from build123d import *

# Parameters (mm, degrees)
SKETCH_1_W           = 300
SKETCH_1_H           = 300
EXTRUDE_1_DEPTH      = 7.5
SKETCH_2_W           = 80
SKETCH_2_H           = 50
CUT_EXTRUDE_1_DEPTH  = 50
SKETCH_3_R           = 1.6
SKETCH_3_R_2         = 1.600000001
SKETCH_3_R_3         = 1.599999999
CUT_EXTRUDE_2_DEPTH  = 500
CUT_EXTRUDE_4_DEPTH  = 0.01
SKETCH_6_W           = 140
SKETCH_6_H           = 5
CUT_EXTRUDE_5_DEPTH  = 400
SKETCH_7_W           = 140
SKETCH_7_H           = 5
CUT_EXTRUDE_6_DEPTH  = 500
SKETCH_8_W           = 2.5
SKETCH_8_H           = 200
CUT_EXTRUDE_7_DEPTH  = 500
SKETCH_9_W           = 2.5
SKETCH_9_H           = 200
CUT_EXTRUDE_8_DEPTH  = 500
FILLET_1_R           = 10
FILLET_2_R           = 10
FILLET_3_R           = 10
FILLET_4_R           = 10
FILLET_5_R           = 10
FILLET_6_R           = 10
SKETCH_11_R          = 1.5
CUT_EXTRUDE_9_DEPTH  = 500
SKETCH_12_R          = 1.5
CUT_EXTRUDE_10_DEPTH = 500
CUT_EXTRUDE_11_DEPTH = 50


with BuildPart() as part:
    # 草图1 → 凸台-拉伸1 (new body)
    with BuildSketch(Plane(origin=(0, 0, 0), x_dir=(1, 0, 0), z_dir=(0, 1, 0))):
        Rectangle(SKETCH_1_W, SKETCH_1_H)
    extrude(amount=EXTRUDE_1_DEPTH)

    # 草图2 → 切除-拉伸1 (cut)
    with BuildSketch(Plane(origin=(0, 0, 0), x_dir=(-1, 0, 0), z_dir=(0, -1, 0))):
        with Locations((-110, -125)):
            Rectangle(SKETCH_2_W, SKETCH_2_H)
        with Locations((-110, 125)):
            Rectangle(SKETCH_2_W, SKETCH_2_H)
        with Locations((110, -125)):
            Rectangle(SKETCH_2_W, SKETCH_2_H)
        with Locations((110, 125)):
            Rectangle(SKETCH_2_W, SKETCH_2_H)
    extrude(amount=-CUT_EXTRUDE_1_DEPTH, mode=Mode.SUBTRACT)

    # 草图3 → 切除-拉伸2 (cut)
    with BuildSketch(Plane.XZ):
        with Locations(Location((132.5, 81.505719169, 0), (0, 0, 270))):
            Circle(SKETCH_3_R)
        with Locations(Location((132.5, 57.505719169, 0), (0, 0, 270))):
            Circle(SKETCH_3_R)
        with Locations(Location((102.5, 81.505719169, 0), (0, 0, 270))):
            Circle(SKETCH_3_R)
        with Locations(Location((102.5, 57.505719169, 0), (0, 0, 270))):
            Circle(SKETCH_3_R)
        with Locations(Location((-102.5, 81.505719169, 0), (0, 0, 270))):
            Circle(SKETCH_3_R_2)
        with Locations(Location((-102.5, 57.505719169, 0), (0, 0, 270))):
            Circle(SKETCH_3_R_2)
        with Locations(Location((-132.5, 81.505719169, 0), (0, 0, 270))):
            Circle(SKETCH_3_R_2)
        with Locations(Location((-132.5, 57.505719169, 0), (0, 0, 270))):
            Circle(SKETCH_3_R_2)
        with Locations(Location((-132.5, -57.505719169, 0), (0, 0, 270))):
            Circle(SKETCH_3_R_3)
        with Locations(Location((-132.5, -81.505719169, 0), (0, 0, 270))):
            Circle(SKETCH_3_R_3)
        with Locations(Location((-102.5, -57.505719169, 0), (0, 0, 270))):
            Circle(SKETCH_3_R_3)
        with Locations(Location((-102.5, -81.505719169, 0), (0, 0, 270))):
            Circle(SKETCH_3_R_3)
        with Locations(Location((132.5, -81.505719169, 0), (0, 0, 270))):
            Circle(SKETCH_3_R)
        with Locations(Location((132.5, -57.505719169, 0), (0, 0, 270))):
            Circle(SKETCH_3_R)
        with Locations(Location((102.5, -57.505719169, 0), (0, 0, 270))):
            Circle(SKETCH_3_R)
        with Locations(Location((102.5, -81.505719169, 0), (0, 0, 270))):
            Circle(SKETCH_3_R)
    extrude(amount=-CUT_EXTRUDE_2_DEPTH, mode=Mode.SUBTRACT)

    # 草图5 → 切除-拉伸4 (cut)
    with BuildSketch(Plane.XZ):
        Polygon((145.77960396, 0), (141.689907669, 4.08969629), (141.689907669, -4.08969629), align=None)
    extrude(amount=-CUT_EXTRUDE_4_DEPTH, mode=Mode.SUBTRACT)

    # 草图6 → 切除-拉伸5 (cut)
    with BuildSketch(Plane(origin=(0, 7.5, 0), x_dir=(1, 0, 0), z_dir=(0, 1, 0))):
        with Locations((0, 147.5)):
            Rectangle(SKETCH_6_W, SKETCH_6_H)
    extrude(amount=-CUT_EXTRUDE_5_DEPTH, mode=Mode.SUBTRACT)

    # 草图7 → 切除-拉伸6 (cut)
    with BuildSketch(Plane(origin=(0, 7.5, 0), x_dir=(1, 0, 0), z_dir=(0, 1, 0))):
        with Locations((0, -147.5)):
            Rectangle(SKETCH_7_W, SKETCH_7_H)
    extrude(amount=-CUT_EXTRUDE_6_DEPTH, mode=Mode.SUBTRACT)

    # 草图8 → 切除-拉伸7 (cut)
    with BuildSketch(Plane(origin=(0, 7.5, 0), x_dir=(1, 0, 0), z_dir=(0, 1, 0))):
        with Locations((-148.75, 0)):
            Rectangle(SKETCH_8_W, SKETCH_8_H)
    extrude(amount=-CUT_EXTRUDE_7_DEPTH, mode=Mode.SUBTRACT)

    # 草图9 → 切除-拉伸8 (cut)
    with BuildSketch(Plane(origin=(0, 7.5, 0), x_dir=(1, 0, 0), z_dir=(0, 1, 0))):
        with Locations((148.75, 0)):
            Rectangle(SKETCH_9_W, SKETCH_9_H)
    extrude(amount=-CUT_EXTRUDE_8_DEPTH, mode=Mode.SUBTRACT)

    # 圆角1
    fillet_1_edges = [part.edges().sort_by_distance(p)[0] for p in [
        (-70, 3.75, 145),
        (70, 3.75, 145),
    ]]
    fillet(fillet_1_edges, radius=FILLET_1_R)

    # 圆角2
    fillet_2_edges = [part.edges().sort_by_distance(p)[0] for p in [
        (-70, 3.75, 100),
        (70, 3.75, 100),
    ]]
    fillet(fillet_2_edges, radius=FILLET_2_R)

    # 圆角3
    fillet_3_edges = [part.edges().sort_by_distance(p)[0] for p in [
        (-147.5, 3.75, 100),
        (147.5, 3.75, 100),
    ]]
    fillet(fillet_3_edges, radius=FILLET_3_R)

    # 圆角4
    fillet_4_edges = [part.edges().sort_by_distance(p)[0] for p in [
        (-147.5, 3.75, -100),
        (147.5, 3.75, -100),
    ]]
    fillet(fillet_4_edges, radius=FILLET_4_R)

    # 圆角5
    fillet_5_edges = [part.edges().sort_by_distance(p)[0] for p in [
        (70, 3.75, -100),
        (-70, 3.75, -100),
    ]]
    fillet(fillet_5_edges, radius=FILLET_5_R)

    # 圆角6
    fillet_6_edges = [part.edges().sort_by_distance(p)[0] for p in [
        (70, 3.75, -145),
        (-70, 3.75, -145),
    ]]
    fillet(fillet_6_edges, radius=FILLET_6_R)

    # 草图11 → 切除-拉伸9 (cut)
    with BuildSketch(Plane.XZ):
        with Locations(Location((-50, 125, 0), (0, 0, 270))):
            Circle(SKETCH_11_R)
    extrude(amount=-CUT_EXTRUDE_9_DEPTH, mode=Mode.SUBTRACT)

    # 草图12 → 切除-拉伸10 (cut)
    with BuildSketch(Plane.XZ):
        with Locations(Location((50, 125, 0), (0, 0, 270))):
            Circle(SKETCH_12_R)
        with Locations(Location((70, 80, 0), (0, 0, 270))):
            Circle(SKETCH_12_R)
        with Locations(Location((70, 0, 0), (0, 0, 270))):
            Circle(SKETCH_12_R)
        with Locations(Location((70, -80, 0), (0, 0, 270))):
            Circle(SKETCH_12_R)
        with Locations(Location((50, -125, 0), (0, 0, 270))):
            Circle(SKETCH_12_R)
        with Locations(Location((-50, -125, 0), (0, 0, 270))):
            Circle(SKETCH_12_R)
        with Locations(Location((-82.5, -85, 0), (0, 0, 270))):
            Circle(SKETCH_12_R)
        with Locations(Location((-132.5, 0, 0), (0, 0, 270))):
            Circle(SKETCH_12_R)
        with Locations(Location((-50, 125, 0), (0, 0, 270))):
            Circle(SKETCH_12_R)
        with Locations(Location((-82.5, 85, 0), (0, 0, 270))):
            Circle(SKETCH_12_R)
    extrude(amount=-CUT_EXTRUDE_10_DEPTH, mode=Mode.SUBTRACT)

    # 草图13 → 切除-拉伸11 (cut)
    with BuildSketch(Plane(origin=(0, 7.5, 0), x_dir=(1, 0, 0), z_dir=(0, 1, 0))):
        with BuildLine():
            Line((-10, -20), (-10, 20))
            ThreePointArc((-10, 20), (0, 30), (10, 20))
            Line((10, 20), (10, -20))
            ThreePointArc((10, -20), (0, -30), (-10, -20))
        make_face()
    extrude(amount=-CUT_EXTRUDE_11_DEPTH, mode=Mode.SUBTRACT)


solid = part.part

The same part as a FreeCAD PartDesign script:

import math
import FreeCAD as App
import Part
import Sketcher
Q = App.Units.Quantity


def edges_at(feature, points):
    """Names of the edges that pass closest to the given points."""
    edges = feature.Shape.Edges
    near = lambda p: min(range(len(edges)), key=lambda i: edges[i].distToShape(Part.Vertex(*p))[0])
    return sorted({f"Edge{near(p) + 1}" for p in points})

doc = App.newDocument("Part")
body = doc.addObject("PartDesign::Body", "Body")

sketch1 = body.newObject("Sketcher::SketchObject", "Sketch")
sketch1.AttachmentSupport = (doc.getObject("XZ_Plane"), [""])
sketch1.MapMode = "FlatFace"
sketch1.addGeometry([
    Part.LineSegment(App.Vector(-150, -150, 0), App.Vector(-150, 150, 0)),
    Part.LineSegment(App.Vector(-150, 150, 0), App.Vector(150, 150, 0)),
    Part.LineSegment(App.Vector(150, 150, 0), App.Vector(150, -150, 0)),
    Part.LineSegment(App.Vector(150, -150, 0), App.Vector(-150, -150, 0)),
], False)
sketch1.addConstraint([
    Sketcher.Constraint("Coincident", 0, 2, 1, 1),
    Sketcher.Constraint("Coincident", 1, 2, 2, 1),
    Sketcher.Constraint("Coincident", 2, 2, 3, 1),
    Sketcher.Constraint("Coincident", 3, 2, 0, 1),
    Sketcher.Constraint("Vertical", 0),
    Sketcher.Constraint("Horizontal", 1),
    Sketcher.Constraint("Vertical", 2),
    Sketcher.Constraint("Horizontal", 3),
    Sketcher.Constraint("Symmetric", 0, 2, 2, 2, -1, 1),
    Sketcher.Constraint("Equal", 3, 0),
    Sketcher.Constraint("DistanceX", 1, 1, 1, 2, Q("300 mm")),
])
pad1 = body.newObject("PartDesign::Pad", "Pad")
pad1.Profile = sketch1
pad1.Length = 7.5
pad1.Reversed = True

sketch2 = body.newObject("Sketcher::SketchObject", "Sketch001")
sketch2.AttachmentSupport = (doc.getObject("XZ_Plane"), [""])
sketch2.MapMode = "FlatFace"
sketch2.addGeometry([
    Part.LineSegment(App.Vector(150, 100, 0), App.Vector(150, 150, 0)),
    Part.LineSegment(App.Vector(150, 150, 0), App.Vector(70, 150, 0)),
    Part.LineSegment(App.Vector(70, 150, 0), App.Vector(70, 100, 0)),
    Part.LineSegment(App.Vector(70, 100, 0), App.Vector(150, 100, 0)),
    Part.LineSegment(App.Vector(150, -150, 0), App.Vector(150, -100, 0)),
    Part.LineSegment(App.Vector(150, -100, 0), App.Vector(70, -100, 0)),
    Part.LineSegment(App.Vector(70, -100, 0), App.Vector(70, -150, 0)),
    Part.LineSegment(App.Vector(70, -150, 0), App.Vector(150, -150, 0)),
    Part.LineSegment(App.Vector(-70, 100, 0), App.Vector(-70, 150, 0)),
    Part.LineSegment(App.Vector(-70, 150, 0), App.Vector(-150, 150, 0)),
    Part.LineSegment(App.Vector(-150, 150, 0), App.Vector(-150, 100, 0)),
    Part.LineSegment(App.Vector(-150, 100, 0), App.Vector(-70, 100, 0)),
    Part.LineSegment(App.Vector(-70, -150, 0), App.Vector(-70, -100, 0)),
    Part.LineSegment(App.Vector(-70, -100, 0), App.Vector(-150, -100, 0)),
    Part.LineSegment(App.Vector(-150, -100, 0), App.Vector(-150, -150, 0)),
    Part.LineSegment(App.Vector(-150, -150, 0), App.Vector(-70, -150, 0)),
], False)
sketch2.addConstraint([
    Sketcher.Constraint("Coincident", 0, 2, 1, 1),
    Sketcher.Constraint("Coincident", 1, 2, 2, 1),
    Sketcher.Constraint("Coincident", 2, 2, 3, 1),
    Sketcher.Constraint("Coincident", 3, 2, 0, 1),
    Sketcher.Constraint("Coincident", 4, 2, 5, 1),
    Sketcher.Constraint("Coincident", 5, 2, 6, 1),
    Sketcher.Constraint("Coincident", 6, 2, 7, 1),
    Sketcher.Constraint("Coincident", 7, 2, 4, 1),
    Sketcher.Constraint("Coincident", 8, 2, 9, 1),
    Sketcher.Constraint("Coincident", 9, 2, 10, 1),
    Sketcher.Constraint("Coincident", 10, 2, 11, 1),
    Sketcher.Constraint("Coincident", 11, 2, 8, 1),
    Sketcher.Constraint("Coincident", 12, 2, 13, 1),
    Sketcher.Constraint("Coincident", 13, 2, 14, 1),
    Sketcher.Constraint("Coincident", 14, 2, 15, 1),
    Sketcher.Constraint("Coincident", 15, 2, 12, 1),
    Sketcher.Constraint("Vertical", 0),
    Sketcher.Constraint("Horizontal", 1),
    Sketcher.Constraint("Vertical", 2),
    Sketcher.Constraint("Horizontal", 3),
    Sketcher.Constraint("Vertical", 4),
    Sketcher.Constraint("Horizontal", 5),
    Sketcher.Constraint("Vertical", 6),
    Sketcher.Constraint("Horizontal", 7),
    Sketcher.Constraint("Vertical", 8),
    Sketcher.Constraint("Horizontal", 9),
    Sketcher.Constraint("Vertical", 10),
    Sketcher.Constraint("Horizontal", 11),
    Sketcher.Constraint("Vertical", 12),
    Sketcher.Constraint("Horizontal", 13),
    Sketcher.Constraint("Vertical", 14),
    Sketcher.Constraint("Horizontal", 15),
    Sketcher.Constraint("Symmetric", 6, 2, 8, 2, -1, 1),
    Sketcher.Constraint("Symmetric", 4, 2, 10, 2, -1, 1),
    Sketcher.Constraint("Symmetric", 2, 2, 12, 2, -1, 1),
    Sketcher.Constraint("Symmetric", 0, 2, 14, 2, -1, 1),
    Sketcher.Constraint("Symmetric", 1, 2, 8, 2, -2),
    Sketcher.Constraint("Symmetric", 3, 2, 10, 2, -2),
    Sketcher.Constraint("DistanceX", 1, 2, 1, 1, Q("80 mm")),
    Sketcher.Constraint("DistanceY", 0, 1, 0, 2, Q("50 mm")),
    Sketcher.Constraint("DistanceX", -1, 1, 0, 2, Q("150 mm")),
    Sketcher.Constraint("DistanceY", -1, 1, 0, 2, Q("150 mm")),
])
pocket1 = body.newObject("PartDesign::Pocket", "Pocket")
pocket1.Profile = sketch2
pocket1.Length = 50

sketch3 = body.newObject("Sketcher::SketchObject", "Sketch002")
sketch3.AttachmentSupport = (doc.getObject("XZ_Plane"), [""])
sketch3.MapMode = "FlatFace"
sketch3.addGeometry([
    Part.Circle(App.Vector(132.5, 81.505719, 0), App.Vector(0, 0, 1), 1.6),
    Part.Circle(App.Vector(132.5, 57.505719, 0), App.Vector(0, 0, 1), 1.6),
    Part.Circle(App.Vector(102.5, 81.505719, 0), App.Vector(0, 0, 1), 1.6),
    Part.Circle(App.Vector(102.5, 57.505719, 0), App.Vector(0, 0, 1), 1.6),
    Part.Circle(App.Vector(-102.5, 81.505719, 0), App.Vector(0, 0, 1), 1.6),
    Part.Circle(App.Vector(-102.5, 57.505719, 0), App.Vector(0, 0, 1), 1.6),
    Part.Circle(App.Vector(-132.5, 81.505719, 0), App.Vector(0, 0, 1), 1.6),
    Part.Circle(App.Vector(-132.5, 57.505719, 0), App.Vector(0, 0, 1), 1.6),
    Part.Circle(App.Vector(-132.5, -57.505719, 0), App.Vector(0, 0, 1), 1.6),
    Part.Circle(App.Vector(-132.5, -81.505719, 0), App.Vector(0, 0, 1), 1.6),
    Part.Circle(App.Vector(-102.5, -57.505719, 0), App.Vector(0, 0, 1), 1.6),
    Part.Circle(App.Vector(-102.5, -81.505719, 0), App.Vector(0, 0, 1), 1.6),
    Part.Circle(App.Vector(132.5, -81.505719, 0), App.Vector(0, 0, 1), 1.6),
    Part.Circle(App.Vector(132.5, -57.505719, 0), App.Vector(0, 0, 1), 1.6),
    Part.Circle(App.Vector(102.5, -57.505719, 0), App.Vector(0, 0, 1), 1.6),
    Part.Circle(App.Vector(102.5, -81.505719, 0), App.Vector(0, 0, 1), 1.6),
], False)
sketch3.addConstraint([
    Sketcher.Constraint("Equal", 0, 1),
    Sketcher.Constraint("Equal", 1, 2),
    Sketcher.Constraint("Equal", 2, 3),
    Sketcher.Constraint("Equal", 3, 4),
    Sketcher.Constraint("Equal", 4, 5),
    Sketcher.Constraint("Equal", 5, 6),
    Sketcher.Constraint("Equal", 6, 7),
    Sketcher.Constraint("Equal", 7, 8),
    Sketcher.Constraint("Equal", 8, 9),
    Sketcher.Constraint("Equal", 9, 10),
    Sketcher.Constraint("Equal", 10, 11),
    Sketcher.Constraint("Equal", 11, 12),
    Sketcher.Constraint("Equal", 12, 13),
    Sketcher.Constraint("Equal", 13, 14),
    Sketcher.Constraint("Equal", 14, 15),
    Sketcher.Constraint("Symmetric", 1, 3, 8, 3, -1, 1),
    Sketcher.Constraint("Symmetric", 0, 3, 9, 3, -1, 1),
    Sketcher.Constraint("Symmetric", 3, 3, 10, 3, -1, 1),
    Sketcher.Constraint("Symmetric", 2, 3, 11, 3, -1, 1),
    Sketcher.Constraint("Symmetric", 6, 3, 12, 3, -1, 1),
    Sketcher.Constraint("Symmetric", 7, 3, 13, 3, -1, 1),
    Sketcher.Constraint("Symmetric", 5, 3, 14, 3, -1, 1),
    Sketcher.Constraint("Symmetric", 4, 3, 15, 3, -1, 1),
    Sketcher.Constraint("Symmetric", 2, 3, 4, 3, -2),
    Sketcher.Constraint("Symmetric", 3, 3, 5, 3, -2),
    Sketcher.Constraint("Symmetric", 0, 3, 6, 3, -2),
    Sketcher.Constraint("Symmetric", 1, 3, 7, 3, -2),
    Sketcher.Constraint("Horizontal", 0, 3, 2, 3),
    Sketcher.Constraint("Horizontal", 1, 3, 3, 3),
    Sketcher.Constraint("Vertical", 0, 3, 1, 3),
    Sketcher.Constraint("Vertical", 2, 3, 3, 3),
    Sketcher.Constraint("Diameter", 0, Q("3.2 mm")),
    Sketcher.Constraint("DistanceY", 1, 3, 0, 3, Q("24 mm")),
    Sketcher.Constraint("DistanceX", 2, 3, 0, 3, Q("30 mm")),
    Sketcher.Constraint("DistanceX", 4, 3, 2, 3, Q("205 mm")),
    Sketcher.Constraint("DistanceY", -1, 1, 0, 3, Q("81.505719 mm")),
])
pocket2 = body.newObject("PartDesign::Pocket", "Pocket001")
pocket2.Profile = sketch3
pocket2.Length = 500

sketch4 = body.newObject("Sketcher::SketchObject", "Sketch003")
sketch4.AttachmentSupport = (doc.getObject("XZ_Plane"), [""])
sketch4.MapMode = "FlatFace"
sketch4.addGeometry([
    Part.LineSegment(App.Vector(145.779604, 0, 0), App.Vector(141.689908, 4.089696, 0)),
    Part.LineSegment(App.Vector(141.689908, 4.089696, 0), App.Vector(141.689908, -4.089696, 0)),
    Part.LineSegment(App.Vector(141.689908, -4.089696, 0), App.Vector(145.779604, 0, 0)),
], False)
sketch4.addConstraint([
    Sketcher.Constraint("Coincident", 0, 2, 1, 1),
    Sketcher.Constraint("Coincident", 1, 2, 2, 1),
    Sketcher.Constraint("Coincident", 2, 2, 0, 1),
    Sketcher.Constraint("Vertical", 1),
    Sketcher.Constraint("PointOnObject", 2, 2, -1),
    Sketcher.Constraint("Perpendicular", 0, 2),
    Sketcher.Constraint("Equal", 0, 2),
    Sketcher.Constraint("DistanceY", 1, 2, 1, 1, Q("8.179393 mm")),
    Sketcher.Constraint("DistanceX", -1, 1, 0, 2, Q("141.689908 mm")),
])
pocket3 = body.newObject("PartDesign::Pocket", "Pocket002")
pocket3.Profile = sketch4
pocket3.Length = 0.01

sketch5 = body.newObject("Sketcher::SketchObject", "Sketch004")
sketch5.AttachmentSupport = (doc.getObject("XZ_Plane"), [""])
sketch5.MapMode = "FlatFace"
sketch5.AttachmentOffset = App.Placement(App.Vector(0, 0, -7.5), App.Rotation())
sketch5.addGeometry([
    Part.LineSegment(App.Vector(-70, -150, 0), App.Vector(-70, -145, 0)),
    Part.LineSegment(App.Vector(-70, -145, 0), App.Vector(70, -145, 0)),
    Part.LineSegment(App.Vector(70, -145, 0), App.Vector(70, -150, 0)),
    Part.LineSegment(App.Vector(70, -150, 0), App.Vector(-70, -150, 0)),
], False)
sketch5.addConstraint([
    Sketcher.Constraint("Coincident", 0, 2, 1, 1),
    Sketcher.Constraint("Coincident", 1, 2, 2, 1),
    Sketcher.Constraint("Coincident", 2, 2, 3, 1),
    Sketcher.Constraint("Coincident", 3, 2, 0, 1),
    Sketcher.Constraint("Vertical", 0),
    Sketcher.Constraint("Horizontal", 1),
    Sketcher.Constraint("Vertical", 2),
    Sketcher.Constraint("Horizontal", 3),
    Sketcher.Constraint("DistanceX", 1, 1, 1, 2, Q("140 mm")),
    Sketcher.Constraint("DistanceY", 0, 1, 0, 2, Q("5 mm")),
    Sketcher.Constraint("DistanceX", 0, 2, -1, 1, Q("70 mm")),
    Sketcher.Constraint("DistanceY", 0, 2, -1, 1, Q("145 mm")),
])
pocket4 = body.newObject("PartDesign::Pocket", "Pocket003")
pocket4.Profile = sketch5
pocket4.Length = 400
pocket4.Reversed = True

sketch6 = body.newObject("Sketcher::SketchObject", "Sketch005")
sketch6.AttachmentSupport = (doc.getObject("XZ_Plane"), [""])
sketch6.MapMode = "FlatFace"
sketch6.AttachmentOffset = App.Placement(App.Vector(0, 0, -7.5), App.Rotation())
sketch6.addGeometry([
    Part.LineSegment(App.Vector(-70, 145, 0), App.Vector(-70, 150, 0)),
    Part.LineSegment(App.Vector(-70, 150, 0), App.Vector(70, 150, 0)),
    Part.LineSegment(App.Vector(70, 150, 0), App.Vector(70, 145, 0)),
    Part.LineSegment(App.Vector(70, 145, 0), App.Vector(-70, 145, 0)),
], False)
sketch6.addConstraint([
    Sketcher.Constraint("Coincident", 0, 2, 1, 1),
    Sketcher.Constraint("Coincident", 1, 2, 2, 1),
    Sketcher.Constraint("Coincident", 2, 2, 3, 1),
    Sketcher.Constraint("Coincident", 3, 2, 0, 1),
    Sketcher.Constraint("Vertical", 0),
    Sketcher.Constraint("Horizontal", 1),
    Sketcher.Constraint("Vertical", 2),
    Sketcher.Constraint("Horizontal", 3),
    Sketcher.Constraint("DistanceX", 1, 1, 1, 2, Q("140 mm")),
    Sketcher.Constraint("DistanceY", 0, 1, 0, 2, Q("5 mm")),
    Sketcher.Constraint("DistanceX", 0, 2, -1, 1, Q("70 mm")),
    Sketcher.Constraint("DistanceY", -1, 1, 0, 2, Q("150 mm")),
])
pocket5 = body.newObject("PartDesign::Pocket", "Pocket004")
pocket5.Profile = sketch6
pocket5.Length = 500
pocket5.Reversed = True

sketch7 = body.newObject("Sketcher::SketchObject", "Sketch006")
sketch7.AttachmentSupport = (doc.getObject("XZ_Plane"), [""])
sketch7.MapMode = "FlatFace"
sketch7.AttachmentOffset = App.Placement(App.Vector(0, 0, -7.5), App.Rotation())
sketch7.addGeometry([
    Part.LineSegment(App.Vector(-150, -100, 0), App.Vector(-150, 100, 0)),
    Part.LineSegment(App.Vector(-150, 100, 0), App.Vector(-147.5, 100, 0)),
    Part.LineSegment(App.Vector(-147.5, 100, 0), App.Vector(-147.5, -100, 0)),
    Part.LineSegment(App.Vector(-147.5, -100, 0), App.Vector(-150, -100, 0)),
], False)
sketch7.addConstraint([
    Sketcher.Constraint("Coincident", 0, 2, 1, 1),
    Sketcher.Constraint("Coincident", 1, 2, 2, 1),
    Sketcher.Constraint("Coincident", 2, 2, 3, 1),
    Sketcher.Constraint("Coincident", 3, 2, 0, 1),
    Sketcher.Constraint("Vertical", 0),
    Sketcher.Constraint("Horizontal", 1),
    Sketcher.Constraint("Vertical", 2),
    Sketcher.Constraint("Horizontal", 3),
    Sketcher.Constraint("DistanceY", 0, 1, 0, 2, Q("200 mm")),
    Sketcher.Constraint("DistanceX", 1, 1, 1, 2, Q("2.5 mm")),
    Sketcher.Constraint("DistanceX", 0, 2, -1, 1, Q("150 mm")),
    Sketcher.Constraint("DistanceY", -1, 1, 0, 2, Q("100 mm")),
])
pocket6 = body.newObject("PartDesign::Pocket", "Pocket005")
pocket6.Profile = sketch7
pocket6.Length = 500
pocket6.Reversed = True

sketch8 = body.newObject("Sketcher::SketchObject", "Sketch007")
sketch8.AttachmentSupport = (doc.getObject("XZ_Plane"), [""])
sketch8.MapMode = "FlatFace"
sketch8.AttachmentOffset = App.Placement(App.Vector(0, 0, -7.5), App.Rotation())
sketch8.addGeometry([
    Part.LineSegment(App.Vector(147.5, -100, 0), App.Vector(147.5, 100, 0)),
    Part.LineSegment(App.Vector(147.5, 100, 0), App.Vector(150, 100, 0)),
    Part.LineSegment(App.Vector(150, 100, 0), App.Vector(150, -100, 0)),
    Part.LineSegment(App.Vector(150, -100, 0), App.Vector(147.5, -100, 0)),
], False)
sketch8.addConstraint([
    Sketcher.Constraint("Coincident", 0, 2, 1, 1),
    Sketcher.Constraint("Coincident", 1, 2, 2, 1),
    Sketcher.Constraint("Coincident", 2, 2, 3, 1),
    Sketcher.Constraint("Coincident", 3, 2, 0, 1),
    Sketcher.Constraint("Vertical", 0),
    Sketcher.Constraint("Horizontal", 1),
    Sketcher.Constraint("Vertical", 2),
    Sketcher.Constraint("Horizontal", 3),
    Sketcher.Constraint("DistanceY", 0, 1, 0, 2, Q("200 mm")),
    Sketcher.Constraint("DistanceX", 1, 1, 1, 2, Q("2.5 mm")),
    Sketcher.Constraint("DistanceY", -1, 1, 0, 2, Q("100 mm")),
    Sketcher.Constraint("DistanceX", -1, 1, 1, 2, Q("150 mm")),
])
pocket7 = body.newObject("PartDesign::Pocket", "Pocket006")
pocket7.Profile = sketch8
pocket7.Length = 500
pocket7.Reversed = True
doc.recompute()

fillet = body.newObject("PartDesign::Fillet", "Fillet")
fillet.Base = (pocket7, edges_at(pocket7, [(-70, 3.75, 145), (70, 3.75, 145)]))
fillet.Radius = 10
doc.recompute()

fillet2 = body.newObject("PartDesign::Fillet", "Fillet001")
fillet2.Base = (fillet, edges_at(fillet, [(-70, 3.75, 100), (70, 3.75, 100)]))
fillet2.Radius = 10
doc.recompute()

fillet3 = body.newObject("PartDesign::Fillet", "Fillet002")
fillet3.Base = (fillet2, edges_at(fillet2, [(-147.5, 3.75, 100), (147.5, 3.75, 100)]))
fillet3.Radius = 10
doc.recompute()

fillet4 = body.newObject("PartDesign::Fillet", "Fillet003")
fillet4.Base = (fillet3, edges_at(fillet3, [(-147.5, 3.75, -100), (147.5, 3.75, -100)]))
fillet4.Radius = 10
doc.recompute()

fillet5 = body.newObject("PartDesign::Fillet", "Fillet004")
fillet5.Base = (fillet4, edges_at(fillet4, [(70, 3.75, -100), (-70, 3.75, -100)]))
fillet5.Radius = 10
doc.recompute()

fillet6 = body.newObject("PartDesign::Fillet", "Fillet005")
fillet6.Base = (fillet5, edges_at(fillet5, [(70, 3.75, -145), (-70, 3.75, -145)]))
fillet6.Radius = 10

sketch9 = body.newObject("Sketcher::SketchObject", "Sketch008")
sketch9.AttachmentSupport = (doc.getObject("XZ_Plane"), [""])
sketch9.MapMode = "FlatFace"
sketch9.addGeometry(Part.Circle(App.Vector(-50, 125, 0), App.Vector(0, 0, 1), 1.5), False)
sketch9.addConstraint([
    Sketcher.Constraint("Diameter", 0, Q("3 mm")),
    Sketcher.Constraint("DistanceX", 0, 3, -1, 1, Q("50 mm")),
    Sketcher.Constraint("DistanceY", -1, 1, 0, 3, Q("125 mm")),
])
pocket8 = body.newObject("PartDesign::Pocket", "Pocket007")
pocket8.Profile = sketch9
pocket8.Length = 500

sketch10 = body.newObject("Sketcher::SketchObject", "Sketch009")
sketch10.AttachmentSupport = (doc.getObject("XZ_Plane"), [""])
sketch10.MapMode = "FlatFace"
sketch10.addGeometry([
    Part.Circle(App.Vector(50, 125, 0), App.Vector(0, 0, 1), 1.5),
    Part.Circle(App.Vector(70, 80, 0), App.Vector(0, 0, 1), 1.5),
    Part.Circle(App.Vector(70, 0, 0), App.Vector(0, 0, 1), 1.5),
    Part.Circle(App.Vector(70, -80, 0), App.Vector(0, 0, 1), 1.5),
    Part.Circle(App.Vector(50, -125, 0), App.Vector(0, 0, 1), 1.5),
    Part.Circle(App.Vector(-50, -125, 0), App.Vector(0, 0, 1), 1.5),
    Part.Circle(App.Vector(-82.5, -85, 0), App.Vector(0, 0, 1), 1.5),
    Part.Circle(App.Vector(-132.5, 0, 0), App.Vector(0, 0, 1), 1.5),
    Part.Circle(App.Vector(-50, 125, 0), App.Vector(0, 0, 1), 1.5),
    Part.Circle(App.Vector(-82.5, 85, 0), App.Vector(0, 0, 1), 1.5),
], False)
sketch10.addConstraint([
    Sketcher.Constraint("Equal", 0, 1),
    Sketcher.Constraint("Equal", 1, 2),
    Sketcher.Constraint("Equal", 2, 3),
    Sketcher.Constraint("Equal", 3, 4),
    Sketcher.Constraint("Equal", 4, 5),
    Sketcher.Constraint("Equal", 5, 6),
    Sketcher.Constraint("Equal", 6, 7),
    Sketcher.Constraint("Equal", 7, 8),
    Sketcher.Constraint("Equal", 8, 9),
    Sketcher.Constraint("Symmetric", 0, 3, 5, 3, -1, 1),
    Sketcher.Constraint("Symmetric", 4, 3, 8, 3, -1, 1),
    Sketcher.Constraint("Symmetric", 4, 3, 5, 3, -2),
    Sketcher.Constraint("Symmetric", 1, 3, 3, 3, -1),
    Sketcher.Constraint("Symmetric", 6, 3, 9, 3, -1),
    Sketcher.Constraint("PointOnObject", 2, 3, -1),
    Sketcher.Constraint("PointOnObject", 7, 3, -1),
    Sketcher.Constraint("Vertical", 1, 3, 2, 3),
    Sketcher.Constraint("Diameter", 0, Q("3 mm")),
    Sketcher.Constraint("DistanceX", -1, 1, 0, 3, Q("50 mm")),
    Sketcher.Constraint("DistanceY", -1, 1, 0, 3, Q("125 mm")),
    Sketcher.Constraint("DistanceX", -1, 1, 1, 3, Q("70 mm")),
    Sketcher.Constraint("DistanceY", -1, 1, 1, 3, Q("80 mm")),
    Sketcher.Constraint("DistanceY", 6, 3, -1, 1, Q("85 mm")),
    Sketcher.Constraint("DistanceX", 7, 3, 6, 3, Q("50 mm")),
    Sketcher.Constraint("DistanceX", 6, 3, -1, 1, Q("82.5 mm")),
])
pocket9 = body.newObject("PartDesign::Pocket", "Pocket008")
pocket9.Profile = sketch10
pocket9.Length = 500

sketch11 = body.newObject("Sketcher::SketchObject", "Sketch010")
sketch11.AttachmentSupport = (doc.getObject("XZ_Plane"), [""])
sketch11.MapMode = "FlatFace"
sketch11.AttachmentOffset = App.Placement(App.Vector(0, 0, -7.5), App.Rotation())
sketch11.addGeometry([
    Part.LineSegment(App.Vector(-10, -20, 0), App.Vector(-10, 20, 0)),
    Part.ArcOfCircle(Part.Circle(App.Vector(0, 20, 0), App.Vector(0, 0, 1), 10), math.radians(0), math.radians(180)),
    Part.LineSegment(App.Vector(10, 20, 0), App.Vector(10, -20, 0)),
    Part.ArcOfCircle(Part.Circle(App.Vector(0, -20, 0), App.Vector(0, 0, 1), 10), math.radians(180), math.radians(360)),
], False)
sketch11.addConstraint([
    Sketcher.Constraint("Tangent", 0, 2, 1, 2),
    Sketcher.Constraint("Tangent", 1, 1, 2, 1),
    Sketcher.Constraint("Tangent", 2, 2, 3, 2),
    Sketcher.Constraint("Tangent", 3, 1, 0, 1),
    Sketcher.Constraint("Vertical", 0),
    Sketcher.Constraint("Vertical", 2),
    Sketcher.Constraint("Symmetric", 1, 3, 3, 3, -1, 1),
    Sketcher.Constraint("Radius", 1, Q("10 mm")),
    Sketcher.Constraint("DistanceY", 0, 1, 0, 2, Q("40 mm")),
])
pocket10 = body.newObject("PartDesign::Pocket", "Pocket009")
pocket10.Profile = sketch11
pocket10.Length = 50
pocket10.Reversed = True

doc.recompute()
